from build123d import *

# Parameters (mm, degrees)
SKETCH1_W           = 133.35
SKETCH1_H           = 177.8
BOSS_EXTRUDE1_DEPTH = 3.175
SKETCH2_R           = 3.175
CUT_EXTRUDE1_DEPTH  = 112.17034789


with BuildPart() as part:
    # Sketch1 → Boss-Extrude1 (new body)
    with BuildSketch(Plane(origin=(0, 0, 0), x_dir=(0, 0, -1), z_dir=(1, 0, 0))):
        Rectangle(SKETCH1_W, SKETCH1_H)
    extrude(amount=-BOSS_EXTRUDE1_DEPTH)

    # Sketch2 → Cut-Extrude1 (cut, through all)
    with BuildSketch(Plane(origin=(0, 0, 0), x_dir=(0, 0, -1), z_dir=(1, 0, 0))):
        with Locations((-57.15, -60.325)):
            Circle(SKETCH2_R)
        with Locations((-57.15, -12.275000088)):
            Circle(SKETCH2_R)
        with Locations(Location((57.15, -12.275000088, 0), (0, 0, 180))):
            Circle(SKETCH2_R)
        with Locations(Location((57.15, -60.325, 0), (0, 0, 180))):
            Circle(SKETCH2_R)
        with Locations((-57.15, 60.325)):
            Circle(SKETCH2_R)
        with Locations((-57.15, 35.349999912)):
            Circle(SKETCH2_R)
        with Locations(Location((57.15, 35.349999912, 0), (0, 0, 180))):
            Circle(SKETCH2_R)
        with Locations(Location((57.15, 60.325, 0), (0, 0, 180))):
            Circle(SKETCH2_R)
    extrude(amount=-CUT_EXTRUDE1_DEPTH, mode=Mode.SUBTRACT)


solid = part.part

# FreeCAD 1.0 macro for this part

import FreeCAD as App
import Part
import Sketcher
Q = App.Units.Quantity

doc = App.newDocument("Part")
params = doc.addObject("Spreadsheet::Sheet", "Params")
for row, (alias, value) in enumerate([
    ("sketch1_width", "7 in"),
    ("sketch1_height", "5.25 in"),
    ("pad1_length", "0.125 in"),
    ("sketch2_diameter", "0.25 in"),
], start=1):
    params.set(f"A{row}", alias)
    params.set(f"B{row}", "=" + value)
    params.setAlias(f"B{row}", alias)

body = doc.addObject("PartDesign::Body", "Body")

sketch1 = body.newObject("Sketcher::SketchObject", "Sketch")
sketch1.AttachmentSupport = (doc.getObject("YZ_Plane"), [""])
sketch1.MapMode = "FlatFace"
sketch1.addGeometry(Part.LineSegment(App.Vector(88.9, 66.675, 0), App.Vector(-88.9, 66.675, 0)), False)
sketch1.addGeometry(Part.LineSegment(App.Vector(-88.9, 66.675, 0), App.Vector(-88.9, -66.675, 0)), False)
sketch1.addGeometry(Part.LineSegment(App.Vector(-88.9, -66.675, 0), App.Vector(88.9, -66.675, 0)), False)
sketch1.addGeometry(Part.LineSegment(App.Vector(88.9, -66.675, 0), App.Vector(88.9, 66.675, 0)), False)
sketch1.addConstraint(Sketcher.Constraint("Coincident", 0, 2, 1, 1))
sketch1.addConstraint(Sketcher.Constraint("Coincident", 1, 2, 2, 1))
sketch1.addConstraint(Sketcher.Constraint("Coincident", 2, 2, 3, 1))
sketch1.addConstraint(Sketcher.Constraint("Coincident", 3, 2, 0, 1))
sketch1.addConstraint(Sketcher.Constraint("Horizontal", 0))
sketch1.addConstraint(Sketcher.Constraint("Vertical", 1))
sketch1.addConstraint(Sketcher.Constraint("Horizontal", 2))
sketch1.addConstraint(Sketcher.Constraint("Vertical", 3))
sketch1.addConstraint(Sketcher.Constraint("Symmetric", 0, 2, 2, 2, -1, 1))
sketch1.addConstraint(Sketcher.Constraint("DistanceX", 0, 2, 0, 1, Q("7 in")))
sketch1.addConstraint(Sketcher.Constraint("DistanceY", 1, 2, 1, 1, Q("5.25 in")))
sketch1.setExpression("Constraints[9]", "Params.sketch1_width")
sketch1.setExpression("Constraints[10]", "Params.sketch1_height")
pad1 = body.newObject("PartDesign::Pad", "Pad")
pad1.Profile = sketch1
pad1.setExpression("Length", "Params.pad1_length")
pad1.Reversed = True

sketch2 = body.newObject("Sketcher::SketchObject", "Sketch001")
sketch2.AttachmentSupport = (doc.getObject("YZ_Plane"), [""])
sketch2.MapMode = "FlatFace"
sketch2.addGeometry(Part.Circle(App.Vector(-60.325, 57.15, 0), App.Vector(0, 0, 1), 3.175), False)
sketch2.addGeometry(Part.Circle(App.Vector(-12.275, 57.15, 0), App.Vector(0, 0, 1), 3.175), False)
sketch2.addGeometry(Part.Circle(App.Vector(-12.275, -57.15, 0), App.Vector(0, 0, 1), 3.175), False)
sketch2.addGeometry(Part.Circle(App.Vector(-60.325, -57.15, 0), App.Vector(0, 0, 1), 3.175), False)
sketch2.addGeometry(Part.Circle(App.Vector(60.325, 57.15, 0), App.Vector(0, 0, 1), 3.175), False)
sketch2.addGeometry(Part.Circle(App.Vector(35.35, 57.15, 0), App.Vector(0, 0, 1), 3.175), False)
sketch2.addGeometry(Part.Circle(App.Vector(35.35, -57.15, 0), App.Vector(0, 0, 1), 3.175), False)
sketch2.addGeometry(Part.Circle(App.Vector(60.325, -57.15, 0), App.Vector(0, 0, 1), 3.175), False)
sketch2.addConstraint(Sketcher.Constraint("Equal", 0, 1))
sketch2.addConstraint(Sketcher.Constraint("Equal", 1, 2))
sketch2.addConstraint(Sketcher.Constraint("Equal", 2, 3))
sketch2.addConstraint(Sketcher.Constraint("Equal", 3, 4))
sketch2.addConstraint(Sketcher.Constraint("Equal", 4, 5))
sketch2.addConstraint(Sketcher.Constraint("Equal", 5, 6))
sketch2.addConstraint(Sketcher.Constraint("Equal", 6, 7))
sketch2.addConstraint(Sketcher.Constraint("Symmetric", 3, 3, 4, 3, -1, 1))
sketch2.addConstraint(Sketcher.Constraint("Symmetric", 0, 3, 7, 3, -1, 1))
sketch2.addConstraint(Sketcher.Constraint("Symmetric", 0, 3, 4, 3, -2))
sketch2.addConstraint(Sketcher.Constraint("Symmetric", 1, 3, 2, 3, -1))
sketch2.addConstraint(Sketcher.Constraint("Symmetric", 5, 3, 6, 3, -1))
sketch2.addConstraint(Sketcher.Constraint("Horizontal", 0, 3, 1, 3))
sketch2.addConstraint(Sketcher.Constraint("Horizontal", 4, 3, 5, 3))
sketch2.addConstraint(Sketcher.Constraint("Diameter", 0, Q("0.25 in")))
sketch2.addConstraint(Sketcher.Constraint("DistanceY", 2, 3, 1, 3, Q("4.5 in")))
sketch2.addConstraint(Sketcher.Constraint("DistanceX", 0, 3, 4, 3, Q("4.75 in")))
sketch2.addConstraint(Sketcher.Constraint("DistanceX", 1, 3, 5, 3, Q("1.875 in")))
sketch2.addConstraint(Sketcher.Constraint("DistanceX", 1, 3, -1, 1, 12.275))
sketch2.setExpression("Constraints[14]", "Params.sketch2_diameter")
pocket1 = body.newObject("PartDesign::Pocket", "Pocket")
pocket1.Profile = sketch2
pocket1.Type = "ThroughAll"

doc.recompute()
